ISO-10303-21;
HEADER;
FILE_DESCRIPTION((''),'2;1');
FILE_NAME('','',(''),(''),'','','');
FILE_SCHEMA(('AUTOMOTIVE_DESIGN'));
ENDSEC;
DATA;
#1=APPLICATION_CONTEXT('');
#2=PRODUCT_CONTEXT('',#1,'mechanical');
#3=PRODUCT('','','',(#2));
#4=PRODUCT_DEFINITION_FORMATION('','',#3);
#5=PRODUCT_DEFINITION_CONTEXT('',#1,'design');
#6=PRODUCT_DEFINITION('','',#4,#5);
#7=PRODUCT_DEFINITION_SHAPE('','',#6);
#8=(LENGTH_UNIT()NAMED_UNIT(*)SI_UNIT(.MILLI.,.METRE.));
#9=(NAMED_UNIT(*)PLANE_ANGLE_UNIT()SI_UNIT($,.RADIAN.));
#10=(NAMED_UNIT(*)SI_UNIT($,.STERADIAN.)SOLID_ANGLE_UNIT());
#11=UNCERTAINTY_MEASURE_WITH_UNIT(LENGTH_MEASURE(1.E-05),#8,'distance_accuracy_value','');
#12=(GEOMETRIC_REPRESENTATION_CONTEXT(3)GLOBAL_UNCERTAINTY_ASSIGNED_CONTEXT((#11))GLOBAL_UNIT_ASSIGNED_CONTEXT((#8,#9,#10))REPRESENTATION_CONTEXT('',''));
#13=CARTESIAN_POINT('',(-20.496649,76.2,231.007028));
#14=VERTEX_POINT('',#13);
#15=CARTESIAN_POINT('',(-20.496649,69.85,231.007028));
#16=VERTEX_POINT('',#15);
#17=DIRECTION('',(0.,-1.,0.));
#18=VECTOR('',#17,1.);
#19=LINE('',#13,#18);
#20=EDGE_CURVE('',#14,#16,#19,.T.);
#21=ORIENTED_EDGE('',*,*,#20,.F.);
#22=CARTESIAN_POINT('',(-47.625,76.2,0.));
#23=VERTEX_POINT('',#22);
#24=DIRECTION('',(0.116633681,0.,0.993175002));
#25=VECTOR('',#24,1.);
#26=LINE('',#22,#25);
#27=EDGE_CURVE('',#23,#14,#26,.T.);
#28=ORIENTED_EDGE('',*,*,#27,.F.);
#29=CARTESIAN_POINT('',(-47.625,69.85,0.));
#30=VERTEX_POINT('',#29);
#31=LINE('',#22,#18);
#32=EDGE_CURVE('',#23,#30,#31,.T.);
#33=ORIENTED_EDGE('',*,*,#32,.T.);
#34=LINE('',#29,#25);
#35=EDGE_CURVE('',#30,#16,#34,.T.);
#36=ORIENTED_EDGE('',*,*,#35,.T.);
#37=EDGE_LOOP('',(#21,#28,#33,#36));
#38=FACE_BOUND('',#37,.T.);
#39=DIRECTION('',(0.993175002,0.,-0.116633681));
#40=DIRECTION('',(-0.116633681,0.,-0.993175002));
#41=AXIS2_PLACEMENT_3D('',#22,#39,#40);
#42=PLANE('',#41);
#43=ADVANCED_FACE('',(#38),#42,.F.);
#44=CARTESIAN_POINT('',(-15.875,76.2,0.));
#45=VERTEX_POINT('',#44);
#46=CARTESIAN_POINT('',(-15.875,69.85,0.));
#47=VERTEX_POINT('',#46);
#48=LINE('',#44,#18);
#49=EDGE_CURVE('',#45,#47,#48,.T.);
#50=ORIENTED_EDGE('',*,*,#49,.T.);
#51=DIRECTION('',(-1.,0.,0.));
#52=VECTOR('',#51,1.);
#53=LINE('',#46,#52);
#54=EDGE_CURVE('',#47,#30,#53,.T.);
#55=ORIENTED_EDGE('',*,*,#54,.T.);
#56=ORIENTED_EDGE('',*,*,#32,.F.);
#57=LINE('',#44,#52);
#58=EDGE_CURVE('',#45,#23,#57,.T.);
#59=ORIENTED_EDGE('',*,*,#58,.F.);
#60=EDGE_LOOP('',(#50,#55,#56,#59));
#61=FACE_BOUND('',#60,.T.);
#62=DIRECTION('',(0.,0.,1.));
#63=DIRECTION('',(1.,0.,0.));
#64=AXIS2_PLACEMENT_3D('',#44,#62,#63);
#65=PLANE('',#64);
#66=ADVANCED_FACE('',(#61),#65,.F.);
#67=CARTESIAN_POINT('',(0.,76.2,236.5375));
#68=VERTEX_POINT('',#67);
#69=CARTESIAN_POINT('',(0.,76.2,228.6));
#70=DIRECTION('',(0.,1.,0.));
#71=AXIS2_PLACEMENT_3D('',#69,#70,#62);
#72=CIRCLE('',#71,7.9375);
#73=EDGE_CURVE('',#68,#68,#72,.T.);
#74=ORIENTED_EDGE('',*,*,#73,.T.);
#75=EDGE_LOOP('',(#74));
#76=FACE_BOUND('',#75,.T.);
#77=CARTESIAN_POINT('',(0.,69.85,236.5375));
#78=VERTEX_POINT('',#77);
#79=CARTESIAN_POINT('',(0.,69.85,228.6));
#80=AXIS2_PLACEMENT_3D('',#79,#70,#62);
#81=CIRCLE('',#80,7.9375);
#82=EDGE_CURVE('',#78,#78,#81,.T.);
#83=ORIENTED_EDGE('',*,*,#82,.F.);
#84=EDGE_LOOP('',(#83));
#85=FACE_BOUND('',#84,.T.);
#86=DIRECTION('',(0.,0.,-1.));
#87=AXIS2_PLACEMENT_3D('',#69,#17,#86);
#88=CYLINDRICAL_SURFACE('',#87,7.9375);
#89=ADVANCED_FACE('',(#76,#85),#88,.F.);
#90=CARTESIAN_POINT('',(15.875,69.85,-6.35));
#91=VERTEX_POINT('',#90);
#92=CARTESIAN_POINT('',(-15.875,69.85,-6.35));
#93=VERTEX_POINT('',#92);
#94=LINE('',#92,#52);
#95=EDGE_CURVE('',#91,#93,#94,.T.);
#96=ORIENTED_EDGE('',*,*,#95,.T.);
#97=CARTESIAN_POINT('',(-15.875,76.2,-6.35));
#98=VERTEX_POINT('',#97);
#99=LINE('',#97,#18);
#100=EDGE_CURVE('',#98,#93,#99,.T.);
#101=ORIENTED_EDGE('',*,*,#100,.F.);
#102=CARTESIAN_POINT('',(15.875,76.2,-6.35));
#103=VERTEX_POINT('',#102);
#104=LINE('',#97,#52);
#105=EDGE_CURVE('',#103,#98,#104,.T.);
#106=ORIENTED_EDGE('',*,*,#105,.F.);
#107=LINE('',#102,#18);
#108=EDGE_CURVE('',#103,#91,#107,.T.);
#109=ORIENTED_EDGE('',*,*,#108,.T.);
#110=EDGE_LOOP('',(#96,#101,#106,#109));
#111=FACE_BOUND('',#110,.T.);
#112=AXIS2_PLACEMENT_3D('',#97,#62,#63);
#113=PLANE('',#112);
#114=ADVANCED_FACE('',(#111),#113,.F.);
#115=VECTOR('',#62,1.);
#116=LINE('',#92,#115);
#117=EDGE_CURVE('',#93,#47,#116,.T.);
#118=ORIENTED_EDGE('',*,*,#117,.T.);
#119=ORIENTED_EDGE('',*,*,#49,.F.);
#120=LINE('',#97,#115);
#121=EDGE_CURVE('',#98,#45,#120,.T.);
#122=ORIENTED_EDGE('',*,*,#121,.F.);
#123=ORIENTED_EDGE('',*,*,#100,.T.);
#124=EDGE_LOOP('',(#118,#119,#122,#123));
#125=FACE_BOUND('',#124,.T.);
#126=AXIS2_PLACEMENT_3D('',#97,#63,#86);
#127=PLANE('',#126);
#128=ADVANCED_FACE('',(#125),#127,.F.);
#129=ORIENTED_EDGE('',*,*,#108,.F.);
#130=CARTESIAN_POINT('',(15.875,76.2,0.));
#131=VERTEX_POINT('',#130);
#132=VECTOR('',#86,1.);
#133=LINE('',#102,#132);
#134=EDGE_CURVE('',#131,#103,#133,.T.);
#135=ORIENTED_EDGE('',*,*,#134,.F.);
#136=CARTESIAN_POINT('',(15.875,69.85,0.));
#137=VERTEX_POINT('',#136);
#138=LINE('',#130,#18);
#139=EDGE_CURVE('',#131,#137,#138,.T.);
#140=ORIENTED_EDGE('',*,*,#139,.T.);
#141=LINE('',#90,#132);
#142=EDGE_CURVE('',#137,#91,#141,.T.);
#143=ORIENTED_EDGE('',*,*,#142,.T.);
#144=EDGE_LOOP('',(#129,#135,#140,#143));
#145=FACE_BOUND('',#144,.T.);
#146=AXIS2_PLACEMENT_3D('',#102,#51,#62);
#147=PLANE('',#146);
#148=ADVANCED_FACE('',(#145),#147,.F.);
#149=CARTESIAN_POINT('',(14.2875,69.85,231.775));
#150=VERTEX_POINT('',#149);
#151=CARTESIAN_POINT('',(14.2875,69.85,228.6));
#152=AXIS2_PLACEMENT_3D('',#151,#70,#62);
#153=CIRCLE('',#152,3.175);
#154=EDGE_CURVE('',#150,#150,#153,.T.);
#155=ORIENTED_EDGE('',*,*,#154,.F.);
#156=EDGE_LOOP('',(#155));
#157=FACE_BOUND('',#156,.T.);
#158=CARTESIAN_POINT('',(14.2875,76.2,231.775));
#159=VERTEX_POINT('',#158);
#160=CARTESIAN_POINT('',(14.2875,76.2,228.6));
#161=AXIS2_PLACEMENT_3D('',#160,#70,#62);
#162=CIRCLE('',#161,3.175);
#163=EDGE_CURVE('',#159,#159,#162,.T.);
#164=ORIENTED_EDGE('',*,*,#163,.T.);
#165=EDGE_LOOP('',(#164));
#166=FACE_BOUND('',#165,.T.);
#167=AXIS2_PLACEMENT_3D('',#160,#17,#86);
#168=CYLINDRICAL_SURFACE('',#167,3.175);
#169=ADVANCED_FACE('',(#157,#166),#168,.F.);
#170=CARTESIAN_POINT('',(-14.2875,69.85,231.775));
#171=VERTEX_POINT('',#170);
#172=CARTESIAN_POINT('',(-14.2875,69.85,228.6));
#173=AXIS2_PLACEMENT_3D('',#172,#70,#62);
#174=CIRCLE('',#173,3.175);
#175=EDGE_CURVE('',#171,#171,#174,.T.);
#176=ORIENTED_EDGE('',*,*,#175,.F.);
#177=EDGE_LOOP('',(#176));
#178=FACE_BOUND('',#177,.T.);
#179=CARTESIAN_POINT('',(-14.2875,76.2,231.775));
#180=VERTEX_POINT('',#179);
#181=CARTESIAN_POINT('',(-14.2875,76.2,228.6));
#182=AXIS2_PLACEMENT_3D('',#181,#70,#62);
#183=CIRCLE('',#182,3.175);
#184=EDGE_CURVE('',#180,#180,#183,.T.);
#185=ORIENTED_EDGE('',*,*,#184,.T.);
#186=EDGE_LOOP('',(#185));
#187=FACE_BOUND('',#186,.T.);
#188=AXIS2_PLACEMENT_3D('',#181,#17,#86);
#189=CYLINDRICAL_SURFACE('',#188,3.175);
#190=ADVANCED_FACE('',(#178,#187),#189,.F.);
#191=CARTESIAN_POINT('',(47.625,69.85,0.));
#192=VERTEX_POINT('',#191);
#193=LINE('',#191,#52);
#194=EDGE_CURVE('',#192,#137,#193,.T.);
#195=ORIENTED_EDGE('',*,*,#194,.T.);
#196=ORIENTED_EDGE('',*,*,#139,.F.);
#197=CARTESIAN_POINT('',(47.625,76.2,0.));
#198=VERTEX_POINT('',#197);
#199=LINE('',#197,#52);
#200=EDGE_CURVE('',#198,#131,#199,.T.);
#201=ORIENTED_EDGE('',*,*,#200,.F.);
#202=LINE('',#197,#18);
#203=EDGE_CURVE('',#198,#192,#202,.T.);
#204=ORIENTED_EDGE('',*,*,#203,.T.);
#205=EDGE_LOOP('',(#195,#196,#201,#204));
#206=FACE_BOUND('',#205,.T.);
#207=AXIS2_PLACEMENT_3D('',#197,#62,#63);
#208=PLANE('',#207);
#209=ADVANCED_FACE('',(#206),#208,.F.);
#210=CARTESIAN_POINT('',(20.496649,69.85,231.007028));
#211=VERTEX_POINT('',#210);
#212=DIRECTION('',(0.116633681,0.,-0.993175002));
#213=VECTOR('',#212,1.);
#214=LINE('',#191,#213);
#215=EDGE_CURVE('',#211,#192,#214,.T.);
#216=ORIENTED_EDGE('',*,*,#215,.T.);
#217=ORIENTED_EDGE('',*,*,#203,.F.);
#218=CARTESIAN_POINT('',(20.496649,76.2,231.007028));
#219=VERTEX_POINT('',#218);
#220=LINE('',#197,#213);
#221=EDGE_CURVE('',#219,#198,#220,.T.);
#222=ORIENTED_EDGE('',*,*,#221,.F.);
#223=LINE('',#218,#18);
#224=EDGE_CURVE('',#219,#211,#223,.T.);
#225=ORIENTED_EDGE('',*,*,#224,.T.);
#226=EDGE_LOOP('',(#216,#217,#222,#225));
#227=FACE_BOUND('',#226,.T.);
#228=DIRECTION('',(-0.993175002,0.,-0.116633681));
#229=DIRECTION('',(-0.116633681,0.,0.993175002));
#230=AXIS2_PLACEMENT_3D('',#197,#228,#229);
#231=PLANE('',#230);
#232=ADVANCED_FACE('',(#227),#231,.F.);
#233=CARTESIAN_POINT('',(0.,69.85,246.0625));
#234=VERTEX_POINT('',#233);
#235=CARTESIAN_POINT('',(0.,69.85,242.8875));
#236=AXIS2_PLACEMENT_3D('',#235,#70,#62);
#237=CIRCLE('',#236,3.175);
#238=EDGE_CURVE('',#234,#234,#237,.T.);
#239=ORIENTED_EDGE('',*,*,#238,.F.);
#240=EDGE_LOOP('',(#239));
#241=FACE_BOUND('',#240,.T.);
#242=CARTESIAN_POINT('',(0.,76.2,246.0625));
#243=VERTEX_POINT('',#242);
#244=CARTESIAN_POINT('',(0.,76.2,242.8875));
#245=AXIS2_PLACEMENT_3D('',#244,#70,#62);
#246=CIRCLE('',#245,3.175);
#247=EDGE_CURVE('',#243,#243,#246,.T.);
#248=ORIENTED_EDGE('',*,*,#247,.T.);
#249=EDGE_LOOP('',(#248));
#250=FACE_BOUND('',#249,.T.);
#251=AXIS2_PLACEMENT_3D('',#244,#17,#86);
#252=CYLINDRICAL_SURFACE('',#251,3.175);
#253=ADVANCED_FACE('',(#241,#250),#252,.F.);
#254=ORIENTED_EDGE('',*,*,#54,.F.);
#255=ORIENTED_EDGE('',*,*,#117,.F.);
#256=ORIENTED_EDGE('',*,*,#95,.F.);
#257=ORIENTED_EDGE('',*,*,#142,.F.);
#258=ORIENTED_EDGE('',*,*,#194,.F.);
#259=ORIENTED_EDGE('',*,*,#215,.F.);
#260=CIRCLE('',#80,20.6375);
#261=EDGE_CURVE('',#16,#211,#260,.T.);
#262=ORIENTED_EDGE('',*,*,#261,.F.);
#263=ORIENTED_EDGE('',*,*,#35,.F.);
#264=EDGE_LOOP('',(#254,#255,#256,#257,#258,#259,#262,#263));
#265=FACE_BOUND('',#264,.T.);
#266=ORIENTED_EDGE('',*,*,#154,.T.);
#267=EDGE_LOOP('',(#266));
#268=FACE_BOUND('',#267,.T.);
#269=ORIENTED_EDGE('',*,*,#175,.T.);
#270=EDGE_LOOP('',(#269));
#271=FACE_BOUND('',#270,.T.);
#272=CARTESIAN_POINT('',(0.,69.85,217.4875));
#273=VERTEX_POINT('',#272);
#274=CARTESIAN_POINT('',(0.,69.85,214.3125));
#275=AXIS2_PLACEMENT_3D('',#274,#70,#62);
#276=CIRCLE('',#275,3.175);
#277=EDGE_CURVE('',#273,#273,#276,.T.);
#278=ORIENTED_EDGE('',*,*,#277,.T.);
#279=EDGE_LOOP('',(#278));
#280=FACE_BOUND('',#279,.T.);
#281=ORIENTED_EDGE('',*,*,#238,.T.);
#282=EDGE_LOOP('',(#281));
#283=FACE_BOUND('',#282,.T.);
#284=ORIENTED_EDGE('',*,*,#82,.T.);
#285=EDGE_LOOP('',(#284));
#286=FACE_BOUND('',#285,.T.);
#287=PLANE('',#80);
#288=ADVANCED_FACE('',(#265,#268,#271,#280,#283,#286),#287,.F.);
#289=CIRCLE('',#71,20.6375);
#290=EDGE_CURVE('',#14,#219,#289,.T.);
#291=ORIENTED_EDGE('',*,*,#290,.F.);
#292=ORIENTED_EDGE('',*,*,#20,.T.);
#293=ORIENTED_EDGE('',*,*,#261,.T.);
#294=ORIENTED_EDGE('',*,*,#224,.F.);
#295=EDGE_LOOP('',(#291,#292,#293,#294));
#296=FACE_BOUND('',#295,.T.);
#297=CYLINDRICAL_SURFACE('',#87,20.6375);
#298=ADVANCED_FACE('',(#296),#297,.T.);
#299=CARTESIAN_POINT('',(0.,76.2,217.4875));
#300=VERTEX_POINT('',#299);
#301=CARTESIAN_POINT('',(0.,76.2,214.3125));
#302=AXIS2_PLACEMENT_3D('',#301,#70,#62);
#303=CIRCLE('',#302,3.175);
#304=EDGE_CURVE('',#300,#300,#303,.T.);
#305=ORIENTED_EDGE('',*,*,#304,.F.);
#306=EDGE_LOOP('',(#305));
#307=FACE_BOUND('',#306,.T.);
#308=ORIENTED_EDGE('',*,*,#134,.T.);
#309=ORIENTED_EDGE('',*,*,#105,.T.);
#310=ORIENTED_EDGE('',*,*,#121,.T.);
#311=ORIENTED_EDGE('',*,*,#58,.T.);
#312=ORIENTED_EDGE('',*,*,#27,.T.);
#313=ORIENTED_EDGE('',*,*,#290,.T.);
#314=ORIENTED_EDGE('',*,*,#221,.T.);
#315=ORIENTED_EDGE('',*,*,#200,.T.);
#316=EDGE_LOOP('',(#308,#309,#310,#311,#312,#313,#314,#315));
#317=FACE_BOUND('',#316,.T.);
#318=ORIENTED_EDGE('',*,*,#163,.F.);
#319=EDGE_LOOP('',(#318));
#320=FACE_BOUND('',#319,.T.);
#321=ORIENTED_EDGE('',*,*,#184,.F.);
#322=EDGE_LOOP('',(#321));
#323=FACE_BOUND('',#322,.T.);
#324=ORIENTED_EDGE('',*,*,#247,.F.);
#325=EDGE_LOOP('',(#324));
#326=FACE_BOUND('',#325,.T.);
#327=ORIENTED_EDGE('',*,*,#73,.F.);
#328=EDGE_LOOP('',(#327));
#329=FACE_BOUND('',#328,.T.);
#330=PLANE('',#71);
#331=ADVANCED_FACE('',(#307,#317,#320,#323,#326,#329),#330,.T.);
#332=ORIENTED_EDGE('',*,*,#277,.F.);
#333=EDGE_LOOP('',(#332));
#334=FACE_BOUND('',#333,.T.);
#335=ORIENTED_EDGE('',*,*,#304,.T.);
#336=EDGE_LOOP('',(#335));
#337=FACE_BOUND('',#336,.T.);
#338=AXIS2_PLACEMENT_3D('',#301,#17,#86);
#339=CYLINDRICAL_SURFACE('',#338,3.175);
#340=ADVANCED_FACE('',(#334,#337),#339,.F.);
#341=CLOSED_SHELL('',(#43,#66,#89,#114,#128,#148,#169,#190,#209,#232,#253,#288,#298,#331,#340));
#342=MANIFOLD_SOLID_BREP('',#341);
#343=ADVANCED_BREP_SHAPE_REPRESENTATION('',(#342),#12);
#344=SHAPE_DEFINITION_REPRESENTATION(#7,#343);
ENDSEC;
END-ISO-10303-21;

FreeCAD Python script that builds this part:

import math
import FreeCAD as App
import Part
import Sketcher
from FreeCAD import Vector
Q = App.Units.Quantity

doc = App.newDocument("Part")
body = doc.addObject("PartDesign::Body", "Body")

sketch1 = body.newObject("Sketcher::SketchObject", "Sketch")
sketch1.AttachmentSupport = (doc.getObject("XZ_Plane"), [""])
sketch1.MapMode = "FlatFace"
sketch1.AttachmentOffset = App.Placement(Vector(0, 0, -2.75 * 25.4), App.Rotation())
sketch1.addGeometry(Part.LineSegment(Vector(15.9, -6.3, 0), Vector(-15.9, -6.3, 0)), False)
sketch1.addGeometry(Part.LineSegment(Vector(-15.9, -6.3, 0), Vector(-15.9, 0, 0)), False)
sketch1.addGeometry(Part.LineSegment(Vector(-15.9, 0, 0), Vector(-47.6, 0, 0)), False)
sketch1.addGeometry(Part.LineSegment(Vector(-47.6, 0, 0), Vector(-20.5, 231, 0)), False)
sketch1.addGeometry(Part.ArcOfCircle(Part.Circle(Vector(0, 228.6, 0), Vector(0, 0, 1), 20.6), math.radians(7), math.radians(173)), False)
sketch1.addGeometry(Part.LineSegment(Vector(20.5, 231, 0), Vector(47.6, 0, 0)), False)
sketch1.addGeometry(Part.LineSegment(Vector(47.6, 0, 0), Vector(15.9, 0, 0)), False)
sketch1.addGeometry(Part.LineSegment(Vector(15.9, 0, 0), Vector(15.9, -6.3, 0)), False)
sketch1.addGeometry(Part.Circle(Vector(0, 242.9, 0), Vector(0, 0, 1), 3.2), False)
sketch1.addGeometry(Part.Circle(Vector(14.3, 228.6, 0), Vector(0, 0, 1), 3.2), False)
sketch1.addGeometry(Part.Circle(Vector(0, 228.6, 0), Vector(0, 0, 1), 7.9), False)
sketch1.addGeometry(Part.Circle(Vector(-14.3, 228.6, 0), Vector(0, 0, 1), 3.2), False)
sketch1.addGeometry(Part.Circle(Vector(0, 214.3, 0), Vector(0, 0, 1), 3.2), False)
sketch1.addConstraint(Sketcher.Constraint("Coincident", 0, 2, 1, 1))
sketch1.addConstraint(Sketcher.Constraint("Coincident", 1, 2, 2, 1))
sketch1.addConstraint(Sketcher.Constraint("Coincident", 2, 2, 3, 1))
sketch1.addConstraint(Sketcher.Constraint("Tangent", 3, 2, 4, 2))
sketch1.addConstraint(Sketcher.Constraint("Tangent", 4, 1, 5, 1))
sketch1.addConstraint(Sketcher.Constraint("Coincident", 5, 2, 6, 1))
sketch1.addConstraint(Sketcher.Constraint("Coincident", 6, 2, 7, 1))
sketch1.addConstraint(Sketcher.Constraint("Coincident", 7, 2, 0, 1))
sketch1.addConstraint(Sketcher.Constraint("Horizontal", 0))
sketch1.addConstraint(Sketcher.Constraint("Vertical", 1))
sketch1.addConstraint(Sketcher.Constraint("Horizontal", 2))
sketch1.addConstraint(Sketcher.Constraint("Horizontal", 6))
sketch1.addConstraint(Sketcher.Constraint("Vertical", 7))
sketch1.addConstraint(Sketcher.Constraint("Coincident", 10, 3, 4, 3))
sketch1.addConstraint(Sketcher.Constraint("Equal", 8, 9))
sketch1.addConstraint(Sketcher.Constraint("Equal", 9, 11))
sketch1.addConstraint(Sketcher.Constraint("Equal", 11, 12))
sketch1.addConstraint(Sketcher.Constraint("Symmetric", 2, 2, 5, 2, -1, 1))
sketch1.addConstraint(Sketcher.Constraint("Symmetric", 9, 3, 11, 3, -2))
sketch1.addConstraint(Sketcher.Constraint("Symmetric", 1, 2, 6, 2, -2))
sketch1.addConstraint(Sketcher.Constraint("PointOnObject", 4, 3, -2))
sketch1.addConstraint(Sketcher.Constraint("PointOnObject", 8, 3, -2))
sketch1.addConstraint(Sketcher.Constraint("PointOnObject", 12, 3, -2))
sketch1.addConstraint(Sketcher.Constraint("Horizontal", 4, 3, 9, 3))
sketch1.addConstraint(Sketcher.Constraint("Equal", 0, 2))
sketch1.addConstraint(Sketcher.Constraint("Diameter", 8, Q("0.25 in")))
sketch1.addConstraint(Sketcher.Constraint("Diameter", 10, Q("0.625 in")))
sketch1.addConstraint(Sketcher.Constraint("DistanceY", -1, 1, 4, 3, Q("9 in")))
sketch1.addConstraint(Sketcher.Constraint("Radius", 4, Q("0.8125 in")))
sketch1.addConstraint(Sketcher.Constraint("DistanceX", 0, 2, 0, 1, Q("1.25 in")))
sketch1.addConstraint(Sketcher.Constraint("DistanceY", 1, 1, 1, 2, Q("0.25 in")))
sketch1.addConstraint(Sketcher.Constraint("DistanceY", -1, 1, 8, 3, Q("9.5625 in")))
sketch1.addConstraint(Sketcher.Constraint("DistanceX", -1, 1, 9, 3, Q("0.5625 in")))
sketch1.addConstraint(Sketcher.Constraint("DistanceY", -1, 1, 12, 3, Q("8.4375 in")))
pad1 = body.newObject("PartDesign::Pad", "Pad")
pad1.Profile = sketch1
pad1.Length = Q("0.25 in")
pad1.Reversed = True

doc.recompute()
